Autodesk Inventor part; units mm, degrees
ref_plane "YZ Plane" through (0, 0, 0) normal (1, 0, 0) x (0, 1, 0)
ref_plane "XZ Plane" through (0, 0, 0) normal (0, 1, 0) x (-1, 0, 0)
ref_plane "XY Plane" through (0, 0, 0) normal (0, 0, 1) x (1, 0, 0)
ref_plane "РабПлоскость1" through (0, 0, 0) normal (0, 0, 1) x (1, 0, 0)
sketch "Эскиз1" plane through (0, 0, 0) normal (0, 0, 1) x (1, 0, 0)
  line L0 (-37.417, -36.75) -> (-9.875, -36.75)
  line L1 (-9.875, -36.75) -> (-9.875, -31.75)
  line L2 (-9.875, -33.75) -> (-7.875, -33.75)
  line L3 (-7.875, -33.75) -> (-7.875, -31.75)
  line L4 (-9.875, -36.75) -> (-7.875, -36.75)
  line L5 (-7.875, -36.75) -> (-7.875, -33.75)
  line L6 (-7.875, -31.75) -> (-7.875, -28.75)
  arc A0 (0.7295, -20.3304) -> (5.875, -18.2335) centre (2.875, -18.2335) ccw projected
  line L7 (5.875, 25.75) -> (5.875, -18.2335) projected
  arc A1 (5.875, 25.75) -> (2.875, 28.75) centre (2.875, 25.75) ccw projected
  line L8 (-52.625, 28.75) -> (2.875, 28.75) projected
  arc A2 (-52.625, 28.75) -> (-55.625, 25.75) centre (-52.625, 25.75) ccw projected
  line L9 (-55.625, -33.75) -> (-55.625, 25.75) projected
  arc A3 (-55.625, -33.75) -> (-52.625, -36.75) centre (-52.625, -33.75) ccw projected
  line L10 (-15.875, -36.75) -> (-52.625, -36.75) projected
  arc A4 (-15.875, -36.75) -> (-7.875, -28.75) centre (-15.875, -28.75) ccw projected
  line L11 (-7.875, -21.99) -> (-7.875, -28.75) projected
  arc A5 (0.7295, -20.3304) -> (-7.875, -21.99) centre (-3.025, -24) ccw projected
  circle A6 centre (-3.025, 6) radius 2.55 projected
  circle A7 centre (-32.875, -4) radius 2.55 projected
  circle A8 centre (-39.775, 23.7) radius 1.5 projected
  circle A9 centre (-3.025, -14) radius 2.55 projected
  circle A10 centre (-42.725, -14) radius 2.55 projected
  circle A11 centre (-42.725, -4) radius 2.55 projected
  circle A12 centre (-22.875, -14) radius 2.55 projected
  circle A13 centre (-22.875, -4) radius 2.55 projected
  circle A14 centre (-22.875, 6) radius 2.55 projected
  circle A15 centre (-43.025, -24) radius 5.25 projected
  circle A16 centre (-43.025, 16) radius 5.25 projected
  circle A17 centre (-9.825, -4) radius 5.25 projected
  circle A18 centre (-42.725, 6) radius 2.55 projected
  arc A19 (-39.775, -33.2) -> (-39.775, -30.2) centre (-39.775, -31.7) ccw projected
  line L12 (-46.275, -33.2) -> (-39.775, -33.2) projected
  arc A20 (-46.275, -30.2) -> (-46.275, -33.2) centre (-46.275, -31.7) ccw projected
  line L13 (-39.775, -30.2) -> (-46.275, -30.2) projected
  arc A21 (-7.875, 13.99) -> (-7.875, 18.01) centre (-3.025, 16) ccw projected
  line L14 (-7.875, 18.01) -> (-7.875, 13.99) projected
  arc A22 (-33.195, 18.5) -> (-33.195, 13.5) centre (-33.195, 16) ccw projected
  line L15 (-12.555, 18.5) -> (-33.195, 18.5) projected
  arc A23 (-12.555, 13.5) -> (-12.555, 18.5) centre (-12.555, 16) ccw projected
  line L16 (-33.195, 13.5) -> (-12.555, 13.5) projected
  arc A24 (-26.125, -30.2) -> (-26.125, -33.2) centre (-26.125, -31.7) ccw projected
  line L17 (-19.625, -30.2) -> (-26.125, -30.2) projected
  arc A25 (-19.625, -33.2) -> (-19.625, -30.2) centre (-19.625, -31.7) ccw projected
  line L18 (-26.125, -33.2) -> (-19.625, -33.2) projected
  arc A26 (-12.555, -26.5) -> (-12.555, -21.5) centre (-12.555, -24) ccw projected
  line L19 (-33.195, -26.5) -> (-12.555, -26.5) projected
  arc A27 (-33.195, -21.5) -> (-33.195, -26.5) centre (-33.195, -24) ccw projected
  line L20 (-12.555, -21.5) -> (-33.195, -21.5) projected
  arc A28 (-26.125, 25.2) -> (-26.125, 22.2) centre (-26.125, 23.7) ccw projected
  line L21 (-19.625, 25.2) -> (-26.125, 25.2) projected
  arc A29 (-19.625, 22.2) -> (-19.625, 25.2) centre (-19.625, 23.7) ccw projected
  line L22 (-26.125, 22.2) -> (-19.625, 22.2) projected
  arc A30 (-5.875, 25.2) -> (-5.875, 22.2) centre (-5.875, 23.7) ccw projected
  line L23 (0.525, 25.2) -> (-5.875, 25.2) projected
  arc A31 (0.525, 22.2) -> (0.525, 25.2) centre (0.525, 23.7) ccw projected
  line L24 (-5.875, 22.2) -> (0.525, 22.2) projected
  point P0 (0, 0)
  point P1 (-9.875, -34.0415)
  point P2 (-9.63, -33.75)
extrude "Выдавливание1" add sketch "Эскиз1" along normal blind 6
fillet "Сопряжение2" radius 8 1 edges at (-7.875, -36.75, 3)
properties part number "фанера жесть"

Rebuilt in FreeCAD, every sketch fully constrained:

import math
import FreeCAD as App
import Part
import Sketcher
from FreeCAD import Vector


def edges_at(feature, points):
    """Names of the edges that pass closest to the given points."""
    edges = feature.Shape.Edges
    near = lambda p: min(range(len(edges)), key=lambda i: edges[i].distToShape(Part.Vertex(*p))[0])
    return sorted({f"Edge{near(p) + 1}" for p in points})

doc = App.newDocument("Part")
params = doc.addObject("Spreadsheet::Sheet", "Params")
for row, (alias, value) in enumerate([
    ("sketch1_diameter", "3 mm"),
    ("sketch1_radius", "3 mm"),
    ("sketch1_diameter2", "10.5 mm"),
    ("sketch1_diameter3", "5.1 mm"),
    ("sketch1_radius2", "2.5 mm"),
    ("pad1_length", "6 mm"),
    ("fillet_radius", "8 mm"),
], start=1):
    params.set(f"A{row}", alias)
    params.set(f"B{row}", "=" + value)
    params.setAlias(f"B{row}", alias)

body = doc.addObject("PartDesign::Body", "Body")

sketch1 = body.newObject("Sketcher::SketchObject", "Sketch")
sketch1.AttachmentSupport = (doc.getObject("XY_Plane"), [""])
sketch1.MapMode = "FlatFace"
sketch1.addGeometry([
    Part.LineSegment(Vector(-52.6, -36.8, 0), Vector(-7.9, -36.8, 0)),
    Part.LineSegment(Vector(-7.9, -36.8, 0), Vector(-7.9, -22, 0)),
    Part.ArcOfCircle(Part.Circle(Vector(-3, -24, 0), Vector(0, 0, 1), 5.2), math.radians(44), math.radians(157)),
    Part.ArcOfCircle(Part.Circle(Vector(2.9, -18.2, 0), Vector(0, 0, 1), 3), math.radians(-136), math.radians(0)),
    Part.LineSegment(Vector(5.9, -18.2, 0), Vector(5.9, 25.8, 0)),
    Part.ArcOfCircle(Part.Circle(Vector(2.9, 25.8, 0), Vector(0, 0, 1), 3), math.radians(0), math.radians(90)),
    Part.LineSegment(Vector(2.9, 28.8, 0), Vector(-52.6, 28.8, 0)),
    Part.ArcOfCircle(Part.Circle(Vector(-52.6, 25.8, 0), Vector(0, 0, 1), 3), math.radians(90), math.radians(180)),
    Part.LineSegment(Vector(-55.6, 25.8, 0), Vector(-55.6, -33.8, 0)),
    Part.ArcOfCircle(Part.Circle(Vector(-52.6, -33.8, 0), Vector(0, 0, 1), 3), math.radians(180), math.radians(270)),
    Part.ArcOfCircle(Part.Circle(Vector(-39.8, -31.7, 0), Vector(0, 0, 1), 1.5), math.radians(-90), math.radians(90)),
    Part.LineSegment(Vector(-39.8, -33.2, 0), Vector(-46.3, -33.2, 0)),
    Part.ArcOfCircle(Part.Circle(Vector(-46.3, -31.7, 0), Vector(0, 0, 1), 1.5), math.radians(90), math.radians(270)),
    Part.LineSegment(Vector(-46.3, -30.2, 0), Vector(-39.8, -30.2, 0)),
    Part.Circle(Vector(-43, -24, 0), Vector(0, 0, 1), 5.2),
    Part.Circle(Vector(-42.7, -14, 0), Vector(0, 0, 1), 2.5),
    Part.ArcOfCircle(Part.Circle(Vector(-26.1, -31.7, 0), Vector(0, 0, 1), 1.5), math.radians(90), math.radians(270)),
    Part.LineSegment(Vector(-26.1, -30.2, 0), Vector(-19.6, -30.2, 0)),
    Part.ArcOfCircle(Part.Circle(Vector(-19.6, -31.7, 0), Vector(0, 0, 1), 1.5), math.radians(-90), math.radians(90)),
    Part.LineSegment(Vector(-19.6, -33.2, 0), Vector(-26.1, -33.2, 0)),
    Part.ArcOfCircle(Part.Circle(Vector(-12.6, -24, 0), Vector(0, 0, 1), 2.5), math.radians(-90), math.radians(90)),
    Part.LineSegment(Vector(-12.6, -26.5, 0), Vector(-33.2, -26.5, 0)),
    Part.ArcOfCircle(Part.Circle(Vector(-33.2, -24, 0), Vector(0, 0, 1), 2.5), math.radians(90), math.radians(270)),
    Part.LineSegment(Vector(-33.2, -21.5, 0), Vector(-12.6, -21.5, 0)),
    Part.Circle(Vector(-22.9, -14, 0), Vector(0, 0, 1), 2.5),
    Part.Circle(Vector(-3, -14, 0), Vector(0, 0, 1), 2.5),
    Part.Circle(Vector(-42.7, -4, 0), Vector(0, 0, 1), 2.5),
    Part.Circle(Vector(-42.7, 6, 0), Vector(0, 0, 1), 2.5),
    Part.Circle(Vector(-32.9, -4, 0), Vector(0, 0, 1), 2.5),
    Part.Circle(Vector(-43, 16, 0), Vector(0, 0, 1), 5.2),
    Part.Circle(Vector(-39.8, 23.7, 0), Vector(0, 0, 1), 1.5),
    Part.Circle(Vector(-22.9, -4, 0), Vector(0, 0, 1), 2.5),
    Part.Circle(Vector(-9.8, -4, 0), Vector(0, 0, 1), 5.2),
    Part.Circle(Vector(-22.9, 6, 0), Vector(0, 0, 1), 2.5),
    Part.Circle(Vector(-3, 6, 0), Vector(0, 0, 1), 2.5),
    Part.ArcOfCircle(Part.Circle(Vector(-33.2, 16, 0), Vector(0, 0, 1), 2.5), math.radians(90), math.radians(270)),
    Part.LineSegment(Vector(-33.2, 18.5, 0), Vector(-12.6, 18.5, 0)),
    Part.ArcOfCircle(Part.Circle(Vector(-12.6, 16, 0), Vector(0, 0, 1), 2.5), math.radians(-90), math.radians(90)),
    Part.LineSegment(Vector(-12.6, 13.5, 0), Vector(-33.2, 13.5, 0)),
    Part.ArcOfCircle(Part.Circle(Vector(-26.1, 23.7, 0), Vector(0, 0, 1), 1.5), math.radians(90), math.radians(270)),
    Part.LineSegment(Vector(-26.1, 25.2, 0), Vector(-19.6, 25.2, 0)),
    Part.ArcOfCircle(Part.Circle(Vector(-19.6, 23.7, 0), Vector(0, 0, 1), 1.5), math.radians(-90), math.radians(90)),
    Part.LineSegment(Vector(-19.6, 22.2, 0), Vector(-26.1, 22.2, 0)),
    Part.ArcOfCircle(Part.Circle(Vector(-3, 16, 0), Vector(0, 0, 1), 5.3), math.radians(-157), math.radians(157)),
    Part.LineSegment(Vector(-7.9, 14, 0), Vector(-7.9, 18, 0)),
    Part.ArcOfCircle(Part.Circle(Vector(-5.9, 23.7, 0), Vector(0, 0, 1), 1.5), math.radians(90), math.radians(270)),
    Part.LineSegment(Vector(-5.9, 25.2, 0), Vector(0.5, 25.2, 0)),
    Part.ArcOfCircle(Part.Circle(Vector(0.5, 23.7, 0), Vector(0, 0, 1), 1.5), math.radians(-90), math.radians(90)),
    Part.LineSegment(Vector(0.5, 22.2, 0), Vector(-5.9, 22.2, 0)),
], False)
sketch1.addConstraint([
    Sketcher.Constraint("Coincident", 0, 2, 1, 1),
    Sketcher.Constraint("Coincident", 1, 2, 2, 2),
    Sketcher.Constraint("Tangent", 2, 1, 3, 1),
    Sketcher.Constraint("Tangent", 3, 2, 4, 1),
    Sketcher.Constraint("Tangent", 4, 2, 5, 1),
    Sketcher.Constraint("Tangent", 5, 2, 6, 1),
    Sketcher.Constraint("Tangent", 6, 2, 7, 1),
    Sketcher.Constraint("Tangent", 7, 2, 8, 1),
    Sketcher.Constraint("Tangent", 8, 2, 9, 1),
    Sketcher.Constraint("Tangent", 9, 2, 0, 1),
    Sketcher.Constraint("Tangent", 10, 1, 11, 1),
    Sketcher.Constraint("Tangent", 11, 2, 12, 2),
    Sketcher.Constraint("Tangent", 12, 1, 13, 1),
    Sketcher.Constraint("Tangent", 13, 2, 10, 2),
    Sketcher.Constraint("Tangent", 16, 1, 17, 1),
    Sketcher.Constraint("Tangent", 17, 2, 18, 2),
    Sketcher.Constraint("Tangent", 18, 1, 19, 1),
    Sketcher.Constraint("Tangent", 19, 2, 16, 2),
    Sketcher.Constraint("Tangent", 20, 1, 21, 1),
    Sketcher.Constraint("Tangent", 21, 2, 22, 2),
    Sketcher.Constraint("Tangent", 22, 1, 23, 1),
    Sketcher.Constraint("Tangent", 23, 2, 20, 2),
    Sketcher.Constraint("Tangent", 35, 1, 36, 1),
    Sketcher.Constraint("Tangent", 36, 2, 37, 2),
    Sketcher.Constraint("Tangent", 37, 1, 38, 1),
    Sketcher.Constraint("Tangent", 38, 2, 35, 2),
    Sketcher.Constraint("Tangent", 39, 1, 40, 1),
    Sketcher.Constraint("Tangent", 40, 2, 41, 2),
    Sketcher.Constraint("Tangent", 41, 1, 42, 1),
    Sketcher.Constraint("Tangent", 42, 2, 39, 2),
    Sketcher.Constraint("Coincident", 43, 1, 44, 1),
    Sketcher.Constraint("Coincident", 44, 2, 43, 2),
    Sketcher.Constraint("Tangent", 45, 1, 46, 1),
    Sketcher.Constraint("Tangent", 46, 2, 47, 2),
    Sketcher.Constraint("Tangent", 47, 1, 48, 1),
    Sketcher.Constraint("Tangent", 48, 2, 45, 2),
    Sketcher.Constraint("Horizontal", 0),
    Sketcher.Constraint("Vertical", 1),
    Sketcher.Constraint("Vertical", 4),
    Sketcher.Constraint("Horizontal", 6),
    Sketcher.Constraint("Vertical", 8),
    Sketcher.Constraint("Horizontal", 11),
    Sketcher.Constraint("Horizontal", 13),
    Sketcher.Constraint("Horizontal", 17),
    Sketcher.Constraint("Horizontal", 19),
    Sketcher.Constraint("Horizontal", 21),
    Sketcher.Constraint("Horizontal", 23),
    Sketcher.Constraint("Horizontal", 36),
    Sketcher.Constraint("Horizontal", 38),
    Sketcher.Constraint("Horizontal", 40),
    Sketcher.Constraint("Horizontal", 42),
    Sketcher.Constraint("Vertical", 44),
    Sketcher.Constraint("Horizontal", 46),
    Sketcher.Constraint("Horizontal", 48),
    Sketcher.Constraint("Equal", 3, 5),
    Sketcher.Constraint("Equal", 5, 7),
    Sketcher.Constraint("Equal", 7, 9),
    Sketcher.Constraint("Equal", 2, 14),
    Sketcher.Constraint("Equal", 12, 16),
    Sketcher.Constraint("Equal", 15, 24),
    Sketcher.Constraint("Equal", 24, 25),
    Sketcher.Constraint("Equal", 25, 26),
    Sketcher.Constraint("Equal", 26, 27),
    Sketcher.Constraint("Equal", 27, 28),
    Sketcher.Constraint("Equal", 14, 29),
    Sketcher.Constraint("Equal", 18, 30),
    Sketcher.Constraint("Equal", 28, 31),
    Sketcher.Constraint("Equal", 29, 32),
    Sketcher.Constraint("Equal", 31, 33),
    Sketcher.Constraint("Equal", 33, 34),
    Sketcher.Constraint("Equal", 22, 35),
    Sketcher.Constraint("Equal", 30, 39),
    Sketcher.Constraint("Equal", 32, 43),
    Sketcher.Constraint("Equal", 41, 45),
    Sketcher.Constraint("Horizontal", 2, 3, 14, 3),
    Sketcher.Constraint("Horizontal", 12, 3, 16, 3),
    Sketcher.Constraint("Horizontal", 14, 3, 20, 3),
    Sketcher.Constraint("Horizontal", 15, 3, 24, 3),
    Sketcher.Constraint("Horizontal", 24, 3, 25, 3),
    Sketcher.Constraint("Horizontal", 26, 3, 28, 3),
    Sketcher.Constraint("Horizontal", 28, 3, 31, 3),
    Sketcher.Constraint("Horizontal", 31, 3, 32, 3),
    Sketcher.Constraint("Horizontal", 27, 3, 33, 3),
    Sketcher.Constraint("Horizontal", 33, 3, 34, 3),
    Sketcher.Constraint("Horizontal", 29, 3, 35, 3),
    Sketcher.Constraint("Horizontal", 30, 3, 39, 3),
    Sketcher.Constraint("Horizontal", 37, 3, 43, 3),
    Sketcher.Constraint("Horizontal", 41, 3, 45, 3),
    Sketcher.Constraint("Vertical", 2, 3, 25, 3),
    Sketcher.Constraint("Vertical", 15, 3, 26, 3),
    Sketcher.Constraint("Vertical", 26, 3, 27, 3),
    Sketcher.Constraint("Vertical", 14, 3, 29, 3),
    Sketcher.Constraint("Vertical", 10, 3, 30, 3),
    Sketcher.Constraint("Vertical", 24, 3, 31, 3),
    Sketcher.Constraint("Vertical", 31, 3, 33, 3),
    Sketcher.Constraint("Vertical", 25, 3, 34, 3),
    Sketcher.Constraint("Vertical", 22, 3, 35, 3),
    Sketcher.Constraint("Vertical", 20, 3, 37, 3),
    Sketcher.Constraint("Vertical", 16, 3, 39, 3),
    Sketcher.Constraint("Vertical", 18, 3, 41, 3),
    Sketcher.Constraint("Vertical", 34, 3, 43, 3),
    Sketcher.Constraint("Vertical", 1, 2, 43, 1),
    Sketcher.Constraint("Equal", 13, 17),
    Sketcher.Constraint("Diameter", 30, 3.0),
    Sketcher.Constraint("Radius", 3, 3.0),
    Sketcher.Constraint("Diameter", 14, 10.5),
    Sketcher.Constraint("Diameter", 15, 5.1),
    Sketcher.Constraint("Radius", 20, 2.5),
    Sketcher.Constraint("DistanceX", 6, 2, 6, 1, 55.5),
    Sketcher.Constraint("DistanceX", 11, 2, 11, 1, 6.5),
    Sketcher.Constraint("DistanceX", 46, 1, 46, 2, 6.4),
    Sketcher.Constraint("DistanceY", 8, 2, 8, 1, 59.5),
    Sketcher.Constraint("DistanceY", 2, 3, -1, 1, 24.0),
    Sketcher.Constraint("DistanceY", 15, 3, -1, 1, 14.0),
    Sketcher.Constraint("DistanceY", 26, 3, -1, 1, 4.0),
    Sketcher.Constraint("DistanceY", -1, 1, 27, 3, 6.0),
    Sketcher.Constraint("DistanceY", -1, 1, 29, 3, 16.0),
    Sketcher.Constraint("DistanceX", 0, 1, 0, 2, 44.75),
    Sketcher.Constraint("DistanceX", 21, 2, 21, 1, 20.64),
    Sketcher.Constraint("DistanceY", 1, 1, 1, 2, 14.76),
    Sketcher.Constraint("DistanceY", 44, 1, 44, 2, 4.02),
    Sketcher.Constraint("DistanceY", 10, 3, -1, 1, 31.7),
    Sketcher.Constraint("DistanceY", -1, 1, 30, 3, 23.7),
    Sketcher.Constraint("DistanceX", 2, 3, -1, 1, 3.025),
    Sketcher.Constraint("DistanceX", 10, 3, -1, 1, 39.775),
    Sketcher.Constraint("DistanceX", 14, 3, -1, 1, 43.025),
    Sketcher.Constraint("DistanceX", 15, 3, -1, 1, 42.725),
    Sketcher.Constraint("DistanceX", 16, 3, -1, 1, 26.125),
    Sketcher.Constraint("DistanceX", 20, 3, -1, 1, 12.555),
    Sketcher.Constraint("DistanceX", 24, 3, -1, 1, 22.875),
    Sketcher.Constraint("DistanceX", 28, 3, -1, 1, 32.875),
    Sketcher.Constraint("DistanceX", 32, 3, -1, 1, 9.825),
    Sketcher.Constraint("DistanceX", 45, 3, -1, 1, 5.875),
])
sketch1.setExpression("Constraints[103]", "Params.sketch1_diameter")
sketch1.setExpression("Constraints[104]", "Params.sketch1_radius")
sketch1.setExpression("Constraints[105]", "Params.sketch1_diameter2")
sketch1.setExpression("Constraints[106]", "Params.sketch1_diameter3")
sketch1.setExpression("Constraints[107]", "Params.sketch1_radius2")
pad1 = body.newObject("PartDesign::Pad", "Pad")
pad1.Profile = sketch1
pad1.setExpression("Length", "Params.pad1_length")
doc.recompute()

fillet = body.newObject("PartDesign::Fillet", "Fillet")
fillet.Base = (pad1, edges_at(pad1, [(-7.875, -36.75, 3)]))
fillet.setExpression("Radius", "Params.fillet_radius")

doc.recompute()
